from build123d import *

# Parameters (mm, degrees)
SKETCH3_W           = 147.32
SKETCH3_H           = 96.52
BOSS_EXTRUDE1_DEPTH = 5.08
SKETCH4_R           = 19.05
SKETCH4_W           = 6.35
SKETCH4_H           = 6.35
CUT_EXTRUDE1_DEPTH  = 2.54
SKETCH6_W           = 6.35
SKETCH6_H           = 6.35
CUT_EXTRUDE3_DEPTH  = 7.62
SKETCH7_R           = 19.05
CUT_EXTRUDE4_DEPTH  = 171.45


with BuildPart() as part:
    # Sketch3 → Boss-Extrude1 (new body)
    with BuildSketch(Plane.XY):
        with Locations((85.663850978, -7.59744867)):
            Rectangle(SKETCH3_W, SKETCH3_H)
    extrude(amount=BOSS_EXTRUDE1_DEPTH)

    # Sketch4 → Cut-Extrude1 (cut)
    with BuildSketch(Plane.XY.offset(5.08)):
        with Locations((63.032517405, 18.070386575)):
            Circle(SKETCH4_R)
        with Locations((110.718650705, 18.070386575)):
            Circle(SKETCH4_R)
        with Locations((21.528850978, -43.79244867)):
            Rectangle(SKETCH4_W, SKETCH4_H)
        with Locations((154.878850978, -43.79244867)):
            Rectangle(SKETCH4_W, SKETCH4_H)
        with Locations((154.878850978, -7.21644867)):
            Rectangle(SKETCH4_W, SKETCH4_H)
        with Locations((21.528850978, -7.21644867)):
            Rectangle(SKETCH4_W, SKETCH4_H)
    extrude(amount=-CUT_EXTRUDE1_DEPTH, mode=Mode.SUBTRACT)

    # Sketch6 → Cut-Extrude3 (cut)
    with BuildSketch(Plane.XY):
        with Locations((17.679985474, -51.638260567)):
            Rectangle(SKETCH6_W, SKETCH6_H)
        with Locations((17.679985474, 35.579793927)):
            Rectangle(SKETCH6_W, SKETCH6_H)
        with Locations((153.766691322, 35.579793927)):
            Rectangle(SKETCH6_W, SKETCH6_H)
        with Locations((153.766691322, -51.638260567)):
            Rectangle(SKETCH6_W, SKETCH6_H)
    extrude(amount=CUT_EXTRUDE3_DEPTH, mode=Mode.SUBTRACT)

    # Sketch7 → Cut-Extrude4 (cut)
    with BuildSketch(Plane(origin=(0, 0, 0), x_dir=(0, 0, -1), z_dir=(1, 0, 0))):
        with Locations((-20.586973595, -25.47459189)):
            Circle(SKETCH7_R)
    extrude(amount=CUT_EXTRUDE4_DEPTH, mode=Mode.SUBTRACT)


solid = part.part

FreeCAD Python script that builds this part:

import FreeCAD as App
import Part
import Sketcher
Q = App.Units.Quantity

doc = App.newDocument("Part")
body = doc.addObject("PartDesign::Body", "Body")

sketch1 = doc.addObject("Sketcher::SketchObject", "Sketch")
body.addObject(sketch1)
sketch1.AttachmentSupport = (doc.XY_Plane, [""])
sketch1.MapMode = "FlatFace"
sketch1.addGeometry(Part.LineSegment(App.Vector(12.003851, 40.662551, 0), App.Vector(12.003851, -55.857449, 0)), False)
sketch1.addGeometry(Part.LineSegment(App.Vector(12.003851, -55.857449, 0), App.Vector(159.323851, -55.857449, 0)), False)
sketch1.addGeometry(Part.LineSegment(App.Vector(159.323851, -55.857449, 0), App.Vector(159.323851, 40.662551, 0)), False)
sketch1.addGeometry(Part.LineSegment(App.Vector(159.323851, 40.662551, 0), App.Vector(12.003851, 40.662551, 0)), False)
sketch1.addConstraint(Sketcher.Constraint("Coincident", 0, 2, 1, 1))
sketch1.addConstraint(Sketcher.Constraint("Coincident", 1, 2, 2, 1))
sketch1.addConstraint(Sketcher.Constraint("Coincident", 2, 2, 3, 1))
sketch1.addConstraint(Sketcher.Constraint("Coincident", 3, 2, 0, 1))
sketch1.addConstraint(Sketcher.Constraint("Vertical", 0))
sketch1.addConstraint(Sketcher.Constraint("Horizontal", 1))
sketch1.addConstraint(Sketcher.Constraint("Vertical", 2))
sketch1.addConstraint(Sketcher.Constraint("Horizontal", 3))
sketch1.addConstraint(Sketcher.Constraint("DistanceX", 1, 1, 1, 2, Q("5.8 in")))
sketch1.addConstraint(Sketcher.Constraint("DistanceY", 0, 2, 0, 1, Q("3.8 in")))
sketch1.addConstraint(Sketcher.Constraint("DistanceX", -1, 1, 0, 2, 12.003851))
sketch1.addConstraint(Sketcher.Constraint("DistanceY", 0, 2, -1, 1, 55.857449))
pad1 = doc.addObject("PartDesign::Pad", "Pad")
body.addObject(pad1)
pad1.Profile = sketch1
pad1.Length = Q("0.2 in")

sketch2 = doc.addObject("Sketcher::SketchObject", "Sketch001")
body.addObject(sketch2)
sketch2.AttachmentSupport = (doc.XY_Plane, [""])
sketch2.MapMode = "FlatFace"
sketch2.AttachmentOffset = App.Placement(App.Vector(0, 0, 0.2 * 25.4), App.Rotation())
sketch2.addGeometry(Part.Circle(App.Vector(63.032517, 18.070387, 0), App.Vector(0, 0, 1), 19.05), False)
sketch2.addGeometry(Part.Circle(App.Vector(110.718651, 18.070387, 0), App.Vector(0, 0, 1), 19.05), False)
sketch2.addGeometry(Part.LineSegment(App.Vector(18.353851, -40.617449, 0), App.Vector(18.353851, -46.967449, 0)), False)
sketch2.addGeometry(Part.LineSegment(App.Vector(18.353851, -46.967449, 0), App.Vector(24.703851, -46.967449, 0)), False)
sketch2.addGeometry(Part.LineSegment(App.Vector(24.703851, -46.967449, 0), App.Vector(24.703851, -40.617449, 0)), False)
sketch2.addGeometry(Part.LineSegment(App.Vector(24.703851, -40.617449, 0), App.Vector(18.353851, -40.617449, 0)), False)
sketch2.addGeometry(Part.LineSegment(App.Vector(151.703851, -40.617449, 0), App.Vector(151.703851, -46.967449, 0)), False)
sketch2.addGeometry(Part.LineSegment(App.Vector(151.703851, -46.967449, 0), App.Vector(158.053851, -46.967449, 0)), False)
sketch2.addGeometry(Part.LineSegment(App.Vector(158.053851, -46.967449, 0), App.Vector(158.053851, -40.617449, 0)), False)
sketch2.addGeometry(Part.LineSegment(App.Vector(158.053851, -40.617449, 0), App.Vector(151.703851, -40.617449, 0)), False)
sketch2.addGeometry(Part.LineSegment(App.Vector(151.703851, -4.041449, 0), App.Vector(151.703851, -10.391449, 0)), False)
sketch2.addGeometry(Part.LineSegment(App.Vector(151.703851, -10.391449, 0), App.Vector(158.053851, -10.391449, 0)), False)
sketch2.addGeometry(Part.LineSegment(App.Vector(158.053851, -10.391449, 0), App.Vector(158.053851, -4.041449, 0)), False)
sketch2.addGeometry(Part.LineSegment(App.Vector(158.053851, -4.041449, 0), App.Vector(151.703851, -4.041449, 0)), False)
sketch2.addGeometry(Part.LineSegment(App.Vector(18.353851, -4.041449, 0), App.Vector(18.353851, -10.391449, 0)), False)
sketch2.addGeometry(Part.LineSegment(App.Vector(18.353851, -10.391449, 0), App.Vector(24.703851, -10.391449, 0)), False)
sketch2.addGeometry(Part.LineSegment(App.Vector(24.703851, -10.391449, 0), App.Vector(24.703851, -4.041449, 0)), False)
sketch2.addGeometry(Part.LineSegment(App.Vector(24.703851, -4.041449, 0), App.Vector(18.353851, -4.041449, 0)), False)
sketch2.addConstraint(Sketcher.Constraint("Coincident", 2, 2, 3, 1))
sketch2.addConstraint(Sketcher.Constraint("Coincident", 3, 2, 4, 1))
sketch2.addConstraint(Sketcher.Constraint("Coincident", 4, 2, 5, 1))
sketch2.addConstraint(Sketcher.Constraint("Coincident", 5, 2, 2, 1))
sketch2.addConstraint(Sketcher.Constraint("Coincident", 6, 2, 7, 1))
sketch2.addConstraint(Sketcher.Constraint("Coincident", 7, 2, 8, 1))
sketch2.addConstraint(Sketcher.Constraint("Coincident", 8, 2, 9, 1))
sketch2.addConstraint(Sketcher.Constraint("Coincident", 9, 2, 6, 1))
sketch2.addConstraint(Sketcher.Constraint("Coincident", 10, 2, 11, 1))
sketch2.addConstraint(Sketcher.Constraint("Coincident", 11, 2, 12, 1))
sketch2.addConstraint(Sketcher.Constraint("Coincident", 12, 2, 13, 1))
sketch2.addConstraint(Sketcher.Constraint("Coincident", 13, 2, 10, 1))
sketch2.addConstraint(Sketcher.Constraint("Coincident", 14, 2, 15, 1))
sketch2.addConstraint(Sketcher.Constraint("Coincident", 15, 2, 16, 1))
sketch2.addConstraint(Sketcher.Constraint("Coincident", 16, 2, 17, 1))
sketch2.addConstraint(Sketcher.Constraint("Coincident", 17, 2, 14, 1))
sketch2.addConstraint(Sketcher.Constraint("Vertical", 2))
sketch2.addConstraint(Sketcher.Constraint("Horizontal", 3))
sketch2.addConstraint(Sketcher.Constraint("Vertical", 4))
sketch2.addConstraint(Sketcher.Constraint("Horizontal", 5))
sketch2.addConstraint(Sketcher.Constraint("Vertical", 6))
sketch2.addConstraint(Sketcher.Constraint("Horizontal", 7))
sketch2.addConstraint(Sketcher.Constraint("Vertical", 8))
sketch2.addConstraint(Sketcher.Constraint("Horizontal", 9))
sketch2.addConstraint(Sketcher.Constraint("Vertical", 10))
sketch2.addConstraint(Sketcher.Constraint("Horizontal", 11))
sketch2.addConstraint(Sketcher.Constraint("Vertical", 12))
sketch2.addConstraint(Sketcher.Constraint("Horizontal", 13))
sketch2.addConstraint(Sketcher.Constraint("Vertical", 14))
sketch2.addConstraint(Sketcher.Constraint("Horizontal", 15))
sketch2.addConstraint(Sketcher.Constraint("Vertical", 16))
sketch2.addConstraint(Sketcher.Constraint("Horizontal", 17))
sketch2.addConstraint(Sketcher.Constraint("Equal", 0, 1))
sketch2.addConstraint(Sketcher.Constraint("Horizontal", 0, 3, 1, 3))
sketch2.addConstraint(Sketcher.Constraint("Horizontal", 3, 2, 6, 2))
sketch2.addConstraint(Sketcher.Constraint("Horizontal", 5, 2, 8, 2))
sketch2.addConstraint(Sketcher.Constraint("Horizontal", 11, 2, 14, 2))
sketch2.addConstraint(Sketcher.Constraint("Horizontal", 13, 2, 16, 2))
sketch2.addConstraint(Sketcher.Constraint("Vertical", 9, 2, 10, 2))
sketch2.addConstraint(Sketcher.Constraint("Vertical", 8, 2, 11, 2))
sketch2.addConstraint(Sketcher.Constraint("Vertical", 5, 2, 14, 2))
sketch2.addConstraint(Sketcher.Constraint("Vertical", 4, 2, 15, 2))
sketch2.addConstraint(Sketcher.Constraint("Equal", 5, 7))
sketch2.addConstraint(Sketcher.Constraint("Equal", 17, 2))
sketch2.addConstraint(Sketcher.Constraint("Equal", 8, 10))
sketch2.addConstraint(Sketcher.Constraint("Diameter", 0, Q("1.5 in")))
sketch2.addConstraint(Sketcher.Constraint("DistanceX", 3, 2, 6, 2, Q("5 in")))
sketch2.addConstraint(Sketcher.Constraint("DistanceX", 3, 1, 3, 2, Q("0.25 in")))
sketch2.addConstraint(Sketcher.Constraint("DistanceY", 9, 2, 10, 2, Q("1.19 in")))
sketch2.addConstraint(Sketcher.Constraint("DistanceX", 2, 2, 1, 3, 92.3648))
sketch2.addConstraint(Sketcher.Constraint("DistanceX", -1, 1, 1, 3, 110.718651))
sketch2.addConstraint(Sketcher.Constraint("DistanceY", 2, 2, -1, 1, 46.967449))
sketch2.addConstraint(Sketcher.Constraint("DistanceX", -1, 1, 0, 3, 63.032517))
sketch2.addConstraint(Sketcher.Constraint("DistanceY", -1, 1, 0, 3, 18.070387))
pocket1 = doc.addObject("PartDesign::Pocket", "Pocket")
body.addObject(pocket1)
pocket1.Profile = sketch2
pocket1.Length = Q("0.1 in")

sketch3 = doc.addObject("Sketcher::SketchObject", "Sketch002")
body.addObject(sketch3)
sketch3.AttachmentSupport = (doc.XY_Plane, [""])
sketch3.MapMode = "FlatFace"
sketch3.addGeometry(Part.LineSegment(App.Vector(14.504985, -48.463261, 0), App.Vector(14.504985, -54.813261, 0)), False)
sketch3.addGeometry(Part.LineSegment(App.Vector(14.504985, -54.813261, 0), App.Vector(20.854985, -54.813261, 0)), False)
sketch3.addGeometry(Part.LineSegment(App.Vector(20.854985, -54.813261, 0), App.Vector(20.854985, -48.463261, 0)), False)
sketch3.addGeometry(Part.LineSegment(App.Vector(20.854985, -48.463261, 0), App.Vector(14.504985, -48.463261, 0)), False)
sketch3.addGeometry(Part.LineSegment(App.Vector(14.504985, 38.754794, 0), App.Vector(14.504985, 32.404794, 0)), False)
sketch3.addGeometry(Part.LineSegment(App.Vector(14.504985, 32.404794, 0), App.Vector(20.854985, 32.404794, 0)), False)
sketch3.addGeometry(Part.LineSegment(App.Vector(20.854985, 32.404794, 0), App.Vector(20.854985, 38.754794, 0)), False)
sketch3.addGeometry(Part.LineSegment(App.Vector(20.854985, 38.754794, 0), App.Vector(14.504985, 38.754794, 0)), False)
sketch3.addGeometry(Part.LineSegment(App.Vector(150.591691, 38.754794, 0), App.Vector(150.591691, 32.404794, 0)), False)
sketch3.addGeometry(Part.LineSegment(App.Vector(150.591691, 32.404794, 0), App.Vector(156.941691, 32.404794, 0)), False)
sketch3.addGeometry(Part.LineSegment(App.Vector(156.941691, 32.404794, 0), App.Vector(156.941691, 38.754794, 0)), False)
sketch3.addGeometry(Part.LineSegment(App.Vector(156.941691, 38.754794, 0), App.Vector(150.591691, 38.754794, 0)), False)
sketch3.addGeometry(Part.LineSegment(App.Vector(150.591691, -48.463261, 0), App.Vector(150.591691, -54.813261, 0)), False)
sketch3.addGeometry(Part.LineSegment(App.Vector(150.591691, -54.813261, 0), App.Vector(156.941691, -54.813261, 0)), False)
sketch3.addGeometry(Part.LineSegment(App.Vector(156.941691, -54.813261, 0), App.Vector(156.941691, -48.463261, 0)), False)
sketch3.addGeometry(Part.LineSegment(App.Vector(156.941691, -48.463261, 0), App.Vector(150.591691, -48.463261, 0)), False)
sketch3.addConstraint(Sketcher.Constraint("Coincident", 0, 2, 1, 1))
sketch3.addConstraint(Sketcher.Constraint("Coincident", 1, 2, 2, 1))
sketch3.addConstraint(Sketcher.Constraint("Coincident", 2, 2, 3, 1))
sketch3.addConstraint(Sketcher.Constraint("Coincident", 3, 2, 0, 1))
sketch3.addConstraint(Sketcher.Constraint("Coincident", 4, 2, 5, 1))
sketch3.addConstraint(Sketcher.Constraint("Coincident", 5, 2, 6, 1))
sketch3.addConstraint(Sketcher.Constraint("Coincident", 6, 2, 7, 1))
sketch3.addConstraint(Sketcher.Constraint("Coincident", 7, 2, 4, 1))
sketch3.addConstraint(Sketcher.Constraint("Coincident", 8, 2, 9, 1))
sketch3.addConstraint(Sketcher.Constraint("Coincident", 9, 2, 10, 1))
sketch3.addConstraint(Sketcher.Constraint("Coincident", 10, 2, 11, 1))
sketch3.addConstraint(Sketcher.Constraint("Coincident", 11, 2, 8, 1))
sketch3.addConstraint(Sketcher.Constraint("Coincident", 12, 2, 13, 1))
sketch3.addConstraint(Sketcher.Constraint("Coincident", 13, 2, 14, 1))
sketch3.addConstraint(Sketcher.Constraint("Coincident", 14, 2, 15, 1))
sketch3.addConstraint(Sketcher.Constraint("Coincident", 15, 2, 12, 1))
sketch3.addConstraint(Sketcher.Constraint("Vertical", 0))
sketch3.addConstraint(Sketcher.Constraint("Horizontal", 1))
sketch3.addConstraint(Sketcher.Constraint("Vertical", 2))
sketch3.addConstraint(Sketcher.Constraint("Horizontal", 3))
sketch3.addConstraint(Sketcher.Constraint("Vertical", 4))
sketch3.addConstraint(Sketcher.Constraint("Horizontal", 5))
sketch3.addConstraint(Sketcher.Constraint("Vertical", 6))
sketch3.addConstraint(Sketcher.Constraint("Horizontal", 7))
sketch3.addConstraint(Sketcher.Constraint("Vertical", 8))
sketch3.addConstraint(Sketcher.Constraint("Horizontal", 9))
sketch3.addConstraint(Sketcher.Constraint("Vertical", 10))
sketch3.addConstraint(Sketcher.Constraint("Horizontal", 11))
sketch3.addConstraint(Sketcher.Constraint("Vertical", 12))
sketch3.addConstraint(Sketcher.Constraint("Horizontal", 13))
sketch3.addConstraint(Sketcher.Constraint("Vertical", 14))
sketch3.addConstraint(Sketcher.Constraint("Horizontal", 15))
sketch3.addConstraint(Sketcher.Constraint("Horizontal", 5, 2, 8, 2))
sketch3.addConstraint(Sketcher.Constraint("Horizontal", 7, 2, 10, 2))
sketch3.addConstraint(Sketcher.Constraint("Horizontal", 1, 2, 12, 2))
sketch3.addConstraint(Sketcher.Constraint("Horizontal", 3, 2, 14, 2))
sketch3.addConstraint(Sketcher.Constraint("Vertical", 3, 2, 4, 2))
sketch3.addConstraint(Sketcher.Constraint("Vertical", 2, 2, 5, 2))
sketch3.addConstraint(Sketcher.Constraint("Vertical", 11, 2, 12, 2))
sketch3.addConstraint(Sketcher.Constraint("Vertical", 10, 2, 13, 2))
sketch3.addConstraint(Sketcher.Constraint("Equal", 7, 9))
sketch3.addConstraint(Sketcher.Constraint("Equal", 15, 0))
sketch3.addConstraint(Sketcher.Constraint("Equal", 2, 4))
sketch3.addConstraint(Sketcher.Constraint("DistanceX", 1, 1, 1, 2, Q("0.25 in")))
sketch3.addConstraint(Sketcher.Constraint("DistanceY", 0, 2, -1, 1, 54.813261))
sketch3.addConstraint(Sketcher.Constraint("DistanceX", -1, 1, 8, 2, 150.591691))
sketch3.addConstraint(Sketcher.Constraint("DistanceX", -1, 1, 0, 2, 14.504985))
sketch3.addConstraint(Sketcher.Constraint("DistanceY", -1, 1, 4, 2, 32.404794))
pocket2 = doc.addObject("PartDesign::Pocket", "Pocket001")
body.addObject(pocket2)
pocket2.Profile = sketch3
pocket2.Length = Q("0.3 in")
pocket2.Reversed = True

sketch4 = doc.addObject("Sketcher::SketchObject", "Sketch003")
body.addObject(sketch4)
sketch4.AttachmentSupport = (doc.YZ_Plane, [""])
sketch4.MapMode = "FlatFace"
sketch4.addGeometry(Part.Circle(App.Vector(-25.474592, 20.586974, 0), App.Vector(0, 0, 1), 19.05), False)
sketch4.addConstraint(Sketcher.Constraint("Diameter", 0, Q("1.5 in")))
sketch4.addConstraint(Sketcher.Constraint("DistanceX", 0, 3, -1, 1, 25.474592))
sketch4.addConstraint(Sketcher.Constraint("DistanceY", -1, 1, 0, 3, 20.586974))
pocket3 = doc.addObject("PartDesign::Pocket", "Pocket002")
body.addObject(pocket3)
pocket3.Profile = sketch4
pocket3.Length = Q("6.75 in")
pocket3.Reversed = True

doc.recompute()
